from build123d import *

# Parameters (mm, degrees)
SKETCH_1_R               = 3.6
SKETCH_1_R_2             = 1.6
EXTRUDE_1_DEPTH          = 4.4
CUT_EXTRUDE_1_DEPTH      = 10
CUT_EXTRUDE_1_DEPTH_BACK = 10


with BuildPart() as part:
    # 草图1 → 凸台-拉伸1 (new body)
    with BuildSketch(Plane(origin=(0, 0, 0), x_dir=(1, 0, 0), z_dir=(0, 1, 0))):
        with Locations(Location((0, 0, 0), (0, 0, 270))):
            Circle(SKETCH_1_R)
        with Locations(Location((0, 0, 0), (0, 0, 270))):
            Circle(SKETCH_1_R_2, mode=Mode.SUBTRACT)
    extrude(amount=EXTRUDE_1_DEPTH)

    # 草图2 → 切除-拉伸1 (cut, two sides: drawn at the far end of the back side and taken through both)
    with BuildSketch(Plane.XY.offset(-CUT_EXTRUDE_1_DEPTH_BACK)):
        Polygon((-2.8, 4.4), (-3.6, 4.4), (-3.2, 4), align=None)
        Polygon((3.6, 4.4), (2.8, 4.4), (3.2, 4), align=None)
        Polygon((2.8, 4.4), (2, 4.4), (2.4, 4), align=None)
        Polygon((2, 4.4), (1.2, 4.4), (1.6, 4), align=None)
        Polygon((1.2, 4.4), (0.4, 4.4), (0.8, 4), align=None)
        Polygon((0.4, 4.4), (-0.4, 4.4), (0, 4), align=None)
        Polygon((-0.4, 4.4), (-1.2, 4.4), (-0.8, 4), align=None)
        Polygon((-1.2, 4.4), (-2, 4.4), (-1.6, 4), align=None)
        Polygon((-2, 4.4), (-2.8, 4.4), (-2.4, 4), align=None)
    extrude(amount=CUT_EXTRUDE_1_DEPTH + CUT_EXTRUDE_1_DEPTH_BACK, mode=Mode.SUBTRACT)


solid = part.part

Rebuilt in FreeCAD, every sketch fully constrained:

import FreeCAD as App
import Part
import Sketcher

V = App.Vector


def add_polygon(sketch, points):
    """Adds a closed chain of lines whose ends are joined by coincident constraints."""
    first, n = sketch.GeometryCount, len(points)
    for a, b in zip(points, points[1:] + points[:1]):
        sketch.addGeometry(Part.LineSegment(App.Vector(*a, 0), App.Vector(*b, 0)), False)
    for i in range(n):
        sketch.addConstraint(Sketcher.Constraint("Coincident", first + i, 2, first + (i + 1) % n, 1))

doc = App.newDocument("Part")
body = doc.addObject("PartDesign::Body", "Body")

# Sketch on XZ plane
sketch1 = body.newObject("Sketcher::SketchObject", "Sketch")
sketch1.AttachmentSupport = (doc.getObject("XZ_Plane"), [""])
sketch1.MapMode = "FlatFace"
sketch1.addGeometry([
    Part.Circle(V(0, 0, 0), V(0, 0, 1), 3.6),
    Part.Circle(V(0, 0, 0), V(0, 0, 1), 1.6),
], False)
sketch1.addConstraint([
    Sketcher.Constraint("Coincident", 0, 3, -1, 1),
    Sketcher.Constraint("Coincident", 1, 3, -1, 1),
    Sketcher.Constraint("Diameter", 0, 7.2),
    Sketcher.Constraint("Diameter", 1, 3.2),
])
pad1 = body.newObject("PartDesign::Pad", "Pad")
pad1.Profile = sketch1
pad1.Length = 4.4
pad1.Reversed = True

# Sketch on XY plane
sketch2 = body.newObject("Sketcher::SketchObject", "Sketch001")
sketch2.AttachmentSupport = (doc.getObject("XY_Plane"), [""])
sketch2.MapMode = "FlatFace"
add_polygon(sketch2, [(-2.8, 4.4), (-3.6, 4.4), (-3.2, 4)])  # lines 0-2
add_polygon(sketch2, [(3.6, 4.4), (2.8, 4.4), (3.2, 4)])  # lines 3-5
add_polygon(sketch2, [(2.8, 4.4), (2, 4.4), (2.4, 4)])  # lines 6-8
add_polygon(sketch2, [(2, 4.4), (1.2, 4.4), (1.6, 4)])  # lines 9-11
add_polygon(sketch2, [(1.2, 4.4), (0.4, 4.4), (0.8, 4)])  # lines 12-14
add_polygon(sketch2, [(0.4, 4.4), (-0.4, 4.4), (0, 4)])  # lines 15-17
add_polygon(sketch2, [(-0.4, 4.4), (-1.2, 4.4), (-0.8, 4)])  # lines 18-20
add_polygon(sketch2, [(-1.2, 4.4), (-2, 4.4), (-1.6, 4)])  # lines 21-23
add_polygon(sketch2, [(-2, 4.4), (-2.8, 4.4), (-2.4, 4)])  # lines 24-26
sketch2.addConstraint([
    Sketcher.Constraint("Horizontal", 0),
    Sketcher.Constraint("Horizontal", 3),
    Sketcher.Constraint("Horizontal", 6),
    Sketcher.Constraint("Horizontal", 9),
    Sketcher.Constraint("Horizontal", 12),
    Sketcher.Constraint("Horizontal", 15),
    Sketcher.Constraint("Horizontal", 18),
    Sketcher.Constraint("Horizontal", 21),
    Sketcher.Constraint("Horizontal", 24),
    Sketcher.Constraint("Coincident", 8, 2, 3, 2),
    Sketcher.Constraint("Coincident", 11, 2, 6, 2),
    Sketcher.Constraint("Coincident", 14, 2, 9, 2),
    Sketcher.Constraint("Coincident", 17, 2, 12, 2),
    Sketcher.Constraint("Coincident", 20, 2, 15, 2),
    Sketcher.Constraint("Coincident", 23, 2, 18, 2),
    Sketcher.Constraint("Coincident", 24, 2, 2, 2),
    Sketcher.Constraint("Coincident", 26, 2, 21, 2),
    Sketcher.Constraint("Symmetric", 1, 2, 4, 2, -2),
    Sketcher.Constraint("Symmetric", 13, 2, 19, 2, -2),
    Sketcher.Constraint("Symmetric", 10, 2, 22, 2, -2),
    Sketcher.Constraint("Symmetric", 7, 2, 25, 2, -2),
    Sketcher.Constraint("PointOnObject", 16, 2, -2),
    Sketcher.Constraint("Perpendicular", 1, 2),
    Sketcher.Constraint("Perpendicular", 2, 4),
    Sketcher.Constraint("Perpendicular", 4, 5),
    Sketcher.Constraint("Perpendicular", 5, 7),
    Sketcher.Constraint("Perpendicular", 7, 8),
    Sketcher.Constraint("Perpendicular", 8, 10),
    Sketcher.Constraint("Perpendicular", 10, 11),
    Sketcher.Constraint("Perpendicular", 11, 13),
    Sketcher.Constraint("Perpendicular", 13, 14),
    Sketcher.Constraint("Perpendicular", 14, 16),
    Sketcher.Constraint("Perpendicular", 16, 17),
    Sketcher.Constraint("Perpendicular", 17, 19),
    Sketcher.Constraint("Perpendicular", 20, 22),
    Sketcher.Constraint("Horizontal", 4, 2, 7, 2),
    Sketcher.Constraint("Horizontal", 7, 2, 10, 2),
    Sketcher.Constraint("Horizontal", 10, 2, 13, 2),
    Sketcher.Constraint("Horizontal", 13, 2, 16, 2),
    Sketcher.Constraint("Equal", 1, 2),
    Sketcher.Constraint("DistanceX", 0, 2, 0, 1, 0.8),
    Sketcher.Constraint("DistanceY", -1, 1, 1, 2, 4.0),
])
pocket1 = body.newObject("PartDesign::Pocket", "Pocket")
pocket1.Profile = sketch2
pocket1.Type = "ThroughAll"
pocket1.Midplane = True

doc.recompute()
